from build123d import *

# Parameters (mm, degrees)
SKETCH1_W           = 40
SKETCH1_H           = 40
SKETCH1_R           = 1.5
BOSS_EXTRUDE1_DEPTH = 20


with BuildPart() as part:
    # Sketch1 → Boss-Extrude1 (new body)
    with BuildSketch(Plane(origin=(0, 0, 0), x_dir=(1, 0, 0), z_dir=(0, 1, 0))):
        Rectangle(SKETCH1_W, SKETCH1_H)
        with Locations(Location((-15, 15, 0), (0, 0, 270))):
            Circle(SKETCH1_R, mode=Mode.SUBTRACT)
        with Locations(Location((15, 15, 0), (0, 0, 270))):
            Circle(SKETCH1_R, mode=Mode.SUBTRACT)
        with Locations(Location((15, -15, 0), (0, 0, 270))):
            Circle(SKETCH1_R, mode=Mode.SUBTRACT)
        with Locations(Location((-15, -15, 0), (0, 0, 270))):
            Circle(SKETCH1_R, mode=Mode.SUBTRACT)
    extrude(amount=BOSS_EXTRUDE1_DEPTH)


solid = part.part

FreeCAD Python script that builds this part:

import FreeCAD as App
import Part
import Sketcher
Q = App.Units.Quantity

doc = App.newDocument("Part")
params = doc.addObject("Spreadsheet::Sheet", "Params")
for row, (alias, value) in enumerate([
    ("sketch1_diameter", "3 mm"),
    ("sketch1_width", "40 mm"),
    ("pad1_length", "20 mm"),
], start=1):
    params.set(f"A{row}", alias)
    params.set(f"B{row}", "=" + value)
    params.setAlias(f"B{row}", alias)

body = doc.addObject("PartDesign::Body", "Body")

# Sketch on XZ plane
sketch1 = body.newObject("Sketcher::SketchObject", "Sketch")
sketch1.AttachmentSupport = (doc.getObject("XZ_Plane"), [""])
sketch1.MapMode = "FlatFace"
sketch1.addGeometry(Part.LineSegment(App.Vector(-20, -20, 0), App.Vector(-20, 20, 0)), False)
sketch1.addGeometry(Part.LineSegment(App.Vector(-20, 20, 0), App.Vector(20, 20, 0)), False)
sketch1.addGeometry(Part.LineSegment(App.Vector(20, 20, 0), App.Vector(20, -20, 0)), False)
sketch1.addGeometry(Part.LineSegment(App.Vector(20, -20, 0), App.Vector(-20, -20, 0)), False)
sketch1.addGeometry(Part.Circle(App.Vector(-15, 15, 0), App.Vector(0, 0, 1), 1.5), False)
sketch1.addGeometry(Part.Circle(App.Vector(15, 15, 0), App.Vector(0, 0, 1), 1.5), False)
sketch1.addGeometry(Part.Circle(App.Vector(-15, -15, 0), App.Vector(0, 0, 1), 1.5), False)
sketch1.addGeometry(Part.Circle(App.Vector(15, -15, 0), App.Vector(0, 0, 1), 1.5), False)
sketch1.addConstraint(Sketcher.Constraint("Coincident", 0, 2, 1, 1))
sketch1.addConstraint(Sketcher.Constraint("Coincident", 1, 2, 2, 1))
sketch1.addConstraint(Sketcher.Constraint("Coincident", 2, 2, 3, 1))
sketch1.addConstraint(Sketcher.Constraint("Coincident", 3, 2, 0, 1))
sketch1.addConstraint(Sketcher.Constraint("Vertical", 0))
sketch1.addConstraint(Sketcher.Constraint("Horizontal", 1))
sketch1.addConstraint(Sketcher.Constraint("Vertical", 2))
sketch1.addConstraint(Sketcher.Constraint("Horizontal", 3))
sketch1.addConstraint(Sketcher.Constraint("Equal", 4, 5))
sketch1.addConstraint(Sketcher.Constraint("Equal", 5, 6))
sketch1.addConstraint(Sketcher.Constraint("Equal", 6, 7))
sketch1.addConstraint(Sketcher.Constraint("Symmetric", 5, 3, 6, 3, -1, 1))
sketch1.addConstraint(Sketcher.Constraint("Symmetric", 4, 3, 7, 3, -1, 1))
sketch1.addConstraint(Sketcher.Constraint("Symmetric", 0, 2, 2, 2, -1, 1))
sketch1.addConstraint(Sketcher.Constraint("Symmetric", 4, 3, 5, 3, -2))
sketch1.addConstraint(Sketcher.Constraint("Equal", 3, 0))
sketch1.addConstraint(Sketcher.Constraint("Diameter", 4, Q("3 mm")))
sketch1.addConstraint(Sketcher.Constraint("DistanceX", 1, 1, 1, 2, Q("40 mm")))
sketch1.addConstraint(Sketcher.Constraint("DistanceX", 4, 3, -1, 1, Q("15 mm")))
sketch1.addConstraint(Sketcher.Constraint("DistanceY", -1, 1, 4, 3, Q("15 mm")))
sketch1.setExpression("Constraints[16]", "Params.sketch1_diameter")
sketch1.setExpression("Constraints[17]", "Params.sketch1_width")
pad1 = body.newObject("PartDesign::Pad", "Pad")
pad1.Profile = sketch1
pad1.setExpression("Length", "Params.pad1_length")
pad1.Reversed = True

doc.recompute()
